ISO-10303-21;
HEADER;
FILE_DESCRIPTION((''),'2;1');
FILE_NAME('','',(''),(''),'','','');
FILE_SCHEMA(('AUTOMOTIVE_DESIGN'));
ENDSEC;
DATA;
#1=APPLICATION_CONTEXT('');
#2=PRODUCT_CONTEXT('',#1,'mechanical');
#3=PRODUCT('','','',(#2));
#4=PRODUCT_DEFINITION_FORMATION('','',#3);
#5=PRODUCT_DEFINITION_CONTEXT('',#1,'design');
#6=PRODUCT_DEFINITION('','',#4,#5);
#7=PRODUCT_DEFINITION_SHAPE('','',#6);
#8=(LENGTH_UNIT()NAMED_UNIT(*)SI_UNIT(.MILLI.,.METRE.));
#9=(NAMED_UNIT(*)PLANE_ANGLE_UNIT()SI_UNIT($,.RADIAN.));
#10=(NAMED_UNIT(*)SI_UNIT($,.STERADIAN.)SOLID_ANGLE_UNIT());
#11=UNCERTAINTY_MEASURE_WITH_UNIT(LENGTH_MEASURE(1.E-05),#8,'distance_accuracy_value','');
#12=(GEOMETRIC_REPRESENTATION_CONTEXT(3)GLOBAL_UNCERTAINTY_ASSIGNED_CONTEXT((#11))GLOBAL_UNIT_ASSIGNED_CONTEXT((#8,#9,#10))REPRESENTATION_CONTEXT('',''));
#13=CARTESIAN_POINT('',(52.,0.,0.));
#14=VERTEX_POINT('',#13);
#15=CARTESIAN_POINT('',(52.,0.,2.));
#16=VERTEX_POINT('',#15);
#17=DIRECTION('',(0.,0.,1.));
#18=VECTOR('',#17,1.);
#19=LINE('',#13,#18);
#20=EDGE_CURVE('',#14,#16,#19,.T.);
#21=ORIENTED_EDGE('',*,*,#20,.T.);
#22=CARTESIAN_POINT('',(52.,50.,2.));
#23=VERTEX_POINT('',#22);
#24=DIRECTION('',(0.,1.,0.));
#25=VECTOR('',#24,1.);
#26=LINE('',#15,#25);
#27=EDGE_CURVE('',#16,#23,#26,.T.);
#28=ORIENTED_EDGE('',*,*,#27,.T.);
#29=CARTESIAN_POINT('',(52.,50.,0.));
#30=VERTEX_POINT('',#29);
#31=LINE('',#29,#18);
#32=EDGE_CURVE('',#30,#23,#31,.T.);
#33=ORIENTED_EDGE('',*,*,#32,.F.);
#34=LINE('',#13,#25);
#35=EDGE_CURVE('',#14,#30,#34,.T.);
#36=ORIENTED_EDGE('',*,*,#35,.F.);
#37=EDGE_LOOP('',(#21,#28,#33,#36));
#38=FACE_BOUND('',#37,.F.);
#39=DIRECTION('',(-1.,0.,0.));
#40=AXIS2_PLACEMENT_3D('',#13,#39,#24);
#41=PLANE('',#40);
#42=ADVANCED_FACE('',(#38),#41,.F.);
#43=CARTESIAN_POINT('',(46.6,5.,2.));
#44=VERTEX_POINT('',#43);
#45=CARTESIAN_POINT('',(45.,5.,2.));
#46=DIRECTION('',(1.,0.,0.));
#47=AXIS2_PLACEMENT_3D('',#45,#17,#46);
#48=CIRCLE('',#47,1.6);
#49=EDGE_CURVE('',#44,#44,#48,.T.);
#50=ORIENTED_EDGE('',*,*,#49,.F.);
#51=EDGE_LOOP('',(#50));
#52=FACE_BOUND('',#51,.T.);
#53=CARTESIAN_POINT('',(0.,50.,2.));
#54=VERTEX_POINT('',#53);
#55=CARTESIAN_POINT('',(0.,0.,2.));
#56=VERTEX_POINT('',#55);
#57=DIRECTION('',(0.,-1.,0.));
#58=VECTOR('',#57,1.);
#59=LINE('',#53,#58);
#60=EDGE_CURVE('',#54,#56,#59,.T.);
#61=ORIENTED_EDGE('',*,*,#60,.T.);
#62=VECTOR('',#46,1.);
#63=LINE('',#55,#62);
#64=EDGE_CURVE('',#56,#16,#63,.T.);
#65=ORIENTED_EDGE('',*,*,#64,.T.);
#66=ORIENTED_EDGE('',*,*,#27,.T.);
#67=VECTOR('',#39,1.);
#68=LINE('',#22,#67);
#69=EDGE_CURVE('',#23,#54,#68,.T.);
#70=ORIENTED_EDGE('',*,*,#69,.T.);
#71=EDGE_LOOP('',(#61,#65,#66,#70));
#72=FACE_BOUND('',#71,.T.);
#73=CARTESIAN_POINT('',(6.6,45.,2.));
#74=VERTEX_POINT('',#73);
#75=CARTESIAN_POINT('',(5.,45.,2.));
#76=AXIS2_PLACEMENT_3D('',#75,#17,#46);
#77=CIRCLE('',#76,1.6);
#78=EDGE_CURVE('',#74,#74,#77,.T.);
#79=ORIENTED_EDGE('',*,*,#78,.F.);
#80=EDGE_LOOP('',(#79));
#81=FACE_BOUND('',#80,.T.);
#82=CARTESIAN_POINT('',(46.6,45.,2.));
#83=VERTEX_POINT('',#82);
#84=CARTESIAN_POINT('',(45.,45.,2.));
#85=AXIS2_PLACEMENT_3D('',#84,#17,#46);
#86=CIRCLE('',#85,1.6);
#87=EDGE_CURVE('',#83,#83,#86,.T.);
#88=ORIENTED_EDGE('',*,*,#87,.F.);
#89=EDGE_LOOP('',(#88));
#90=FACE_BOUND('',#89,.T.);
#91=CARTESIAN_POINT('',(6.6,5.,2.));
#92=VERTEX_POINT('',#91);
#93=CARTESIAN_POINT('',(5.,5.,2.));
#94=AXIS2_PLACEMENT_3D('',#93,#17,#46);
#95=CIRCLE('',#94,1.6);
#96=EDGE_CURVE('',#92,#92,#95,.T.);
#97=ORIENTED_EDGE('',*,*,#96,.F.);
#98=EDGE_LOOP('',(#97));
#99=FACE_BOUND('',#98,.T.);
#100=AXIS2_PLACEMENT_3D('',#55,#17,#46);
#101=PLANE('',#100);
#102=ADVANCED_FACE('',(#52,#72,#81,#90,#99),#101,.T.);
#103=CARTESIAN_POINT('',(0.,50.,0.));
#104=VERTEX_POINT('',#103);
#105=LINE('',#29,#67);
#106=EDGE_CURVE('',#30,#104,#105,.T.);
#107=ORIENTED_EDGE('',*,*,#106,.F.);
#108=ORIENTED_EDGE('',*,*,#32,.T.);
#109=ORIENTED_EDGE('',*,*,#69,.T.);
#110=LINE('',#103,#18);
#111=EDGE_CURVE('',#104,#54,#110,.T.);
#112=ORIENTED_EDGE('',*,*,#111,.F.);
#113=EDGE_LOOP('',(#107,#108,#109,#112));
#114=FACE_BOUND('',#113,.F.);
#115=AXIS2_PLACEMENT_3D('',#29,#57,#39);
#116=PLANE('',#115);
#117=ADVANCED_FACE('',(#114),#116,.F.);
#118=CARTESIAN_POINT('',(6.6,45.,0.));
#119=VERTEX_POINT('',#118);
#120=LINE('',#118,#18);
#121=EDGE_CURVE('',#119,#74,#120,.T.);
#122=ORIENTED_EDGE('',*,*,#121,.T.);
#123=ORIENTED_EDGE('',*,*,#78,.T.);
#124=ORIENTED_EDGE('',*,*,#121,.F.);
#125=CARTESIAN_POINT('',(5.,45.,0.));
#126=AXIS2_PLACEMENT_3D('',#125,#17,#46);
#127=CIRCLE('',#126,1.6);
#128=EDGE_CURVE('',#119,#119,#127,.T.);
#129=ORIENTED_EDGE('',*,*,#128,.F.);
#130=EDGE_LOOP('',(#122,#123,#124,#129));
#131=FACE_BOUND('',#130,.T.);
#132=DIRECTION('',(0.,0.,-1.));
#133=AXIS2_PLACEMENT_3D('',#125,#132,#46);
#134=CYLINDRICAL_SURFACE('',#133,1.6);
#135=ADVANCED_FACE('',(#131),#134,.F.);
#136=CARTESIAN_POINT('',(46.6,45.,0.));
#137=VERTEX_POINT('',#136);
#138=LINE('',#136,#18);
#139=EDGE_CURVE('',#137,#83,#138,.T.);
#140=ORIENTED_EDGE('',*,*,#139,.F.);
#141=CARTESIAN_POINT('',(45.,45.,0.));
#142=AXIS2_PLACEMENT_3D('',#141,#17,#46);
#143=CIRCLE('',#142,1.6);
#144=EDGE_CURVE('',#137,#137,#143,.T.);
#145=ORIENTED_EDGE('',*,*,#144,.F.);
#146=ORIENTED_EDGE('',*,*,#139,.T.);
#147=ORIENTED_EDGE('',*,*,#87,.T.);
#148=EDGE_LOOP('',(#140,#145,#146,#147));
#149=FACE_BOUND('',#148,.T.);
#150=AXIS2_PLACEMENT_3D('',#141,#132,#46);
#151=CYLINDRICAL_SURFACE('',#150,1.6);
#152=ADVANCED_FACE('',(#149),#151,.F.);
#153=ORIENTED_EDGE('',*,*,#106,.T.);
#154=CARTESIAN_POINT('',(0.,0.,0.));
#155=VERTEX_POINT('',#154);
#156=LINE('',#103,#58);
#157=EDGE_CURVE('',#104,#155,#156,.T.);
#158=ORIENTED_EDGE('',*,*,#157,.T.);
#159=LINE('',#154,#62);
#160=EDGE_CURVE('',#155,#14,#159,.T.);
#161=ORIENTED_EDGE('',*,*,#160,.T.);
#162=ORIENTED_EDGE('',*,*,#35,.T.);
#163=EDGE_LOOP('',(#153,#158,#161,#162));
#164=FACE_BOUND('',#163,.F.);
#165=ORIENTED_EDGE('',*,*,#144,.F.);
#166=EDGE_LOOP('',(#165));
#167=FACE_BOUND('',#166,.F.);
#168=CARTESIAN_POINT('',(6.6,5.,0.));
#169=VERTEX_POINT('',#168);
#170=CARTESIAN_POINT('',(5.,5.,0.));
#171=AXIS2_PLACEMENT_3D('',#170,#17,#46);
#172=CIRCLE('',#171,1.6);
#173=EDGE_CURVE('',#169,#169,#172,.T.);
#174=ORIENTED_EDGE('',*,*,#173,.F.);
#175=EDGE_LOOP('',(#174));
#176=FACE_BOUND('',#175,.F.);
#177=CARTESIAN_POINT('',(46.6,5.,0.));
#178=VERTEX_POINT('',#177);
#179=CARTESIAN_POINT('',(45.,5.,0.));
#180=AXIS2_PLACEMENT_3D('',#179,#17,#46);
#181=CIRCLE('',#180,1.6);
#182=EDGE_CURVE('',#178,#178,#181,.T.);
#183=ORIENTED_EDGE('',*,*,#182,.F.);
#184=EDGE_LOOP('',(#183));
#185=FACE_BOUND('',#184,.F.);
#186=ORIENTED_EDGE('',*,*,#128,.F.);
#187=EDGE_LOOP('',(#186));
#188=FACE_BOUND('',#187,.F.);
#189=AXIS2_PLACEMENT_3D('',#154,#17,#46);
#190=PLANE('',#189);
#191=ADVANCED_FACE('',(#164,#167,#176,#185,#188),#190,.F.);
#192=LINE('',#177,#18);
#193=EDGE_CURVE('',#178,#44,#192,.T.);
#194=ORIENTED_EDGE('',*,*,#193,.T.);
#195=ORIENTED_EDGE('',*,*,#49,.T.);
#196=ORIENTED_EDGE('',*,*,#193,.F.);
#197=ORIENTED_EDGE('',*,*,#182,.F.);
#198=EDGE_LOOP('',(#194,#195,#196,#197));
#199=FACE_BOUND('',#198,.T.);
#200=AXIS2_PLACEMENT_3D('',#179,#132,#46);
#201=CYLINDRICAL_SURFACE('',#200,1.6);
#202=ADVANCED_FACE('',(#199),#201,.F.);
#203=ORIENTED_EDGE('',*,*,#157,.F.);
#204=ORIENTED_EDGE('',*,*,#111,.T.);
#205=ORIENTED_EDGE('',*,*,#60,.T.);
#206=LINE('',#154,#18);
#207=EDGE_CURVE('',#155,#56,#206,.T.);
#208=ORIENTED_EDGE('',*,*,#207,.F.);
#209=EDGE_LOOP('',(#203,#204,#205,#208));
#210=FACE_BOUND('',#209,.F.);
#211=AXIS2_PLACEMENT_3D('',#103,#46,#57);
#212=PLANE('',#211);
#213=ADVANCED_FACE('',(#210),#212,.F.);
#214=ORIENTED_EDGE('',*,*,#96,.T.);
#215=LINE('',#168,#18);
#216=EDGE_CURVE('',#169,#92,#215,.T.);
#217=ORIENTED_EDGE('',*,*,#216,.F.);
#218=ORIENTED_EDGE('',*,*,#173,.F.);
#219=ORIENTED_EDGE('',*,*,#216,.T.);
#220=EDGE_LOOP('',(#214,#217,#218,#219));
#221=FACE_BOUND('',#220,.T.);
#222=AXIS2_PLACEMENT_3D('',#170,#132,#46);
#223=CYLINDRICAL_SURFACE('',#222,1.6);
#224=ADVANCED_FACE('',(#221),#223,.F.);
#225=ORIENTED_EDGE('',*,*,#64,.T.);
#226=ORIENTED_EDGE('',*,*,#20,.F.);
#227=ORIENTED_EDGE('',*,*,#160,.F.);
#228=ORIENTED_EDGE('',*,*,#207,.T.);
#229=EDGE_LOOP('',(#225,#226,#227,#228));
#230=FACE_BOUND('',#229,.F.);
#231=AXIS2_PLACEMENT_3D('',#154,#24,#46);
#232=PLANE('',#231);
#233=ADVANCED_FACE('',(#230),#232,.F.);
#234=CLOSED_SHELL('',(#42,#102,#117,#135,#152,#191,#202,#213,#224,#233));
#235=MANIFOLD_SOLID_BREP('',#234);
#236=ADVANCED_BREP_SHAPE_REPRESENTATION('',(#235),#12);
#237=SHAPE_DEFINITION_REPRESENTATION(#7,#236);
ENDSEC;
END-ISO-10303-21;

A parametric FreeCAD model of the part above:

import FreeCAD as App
import Part
import Sketcher
Q = App.Units.Quantity

doc = App.newDocument("Part")
body = doc.addObject("PartDesign::Body", "Body")

sketch1 = body.newObject("Sketcher::SketchObject", "Sketch")
sketch1.AttachmentSupport = (doc.getObject("XY_Plane"), [""])
sketch1.MapMode = "FlatFace"
sketch1.addGeometry([
    Part.LineSegment(App.Vector(0, 50, 0), App.Vector(0, 0, 0)),
    Part.LineSegment(App.Vector(0, 0, 0), App.Vector(52, 0, 0)),
    Part.LineSegment(App.Vector(52, 0, 0), App.Vector(52, 50, 0)),
    Part.LineSegment(App.Vector(52, 50, 0), App.Vector(0, 50, 0)),
    Part.Circle(App.Vector(5, 5, 0), App.Vector(0, 0, 1), 1.6),
    Part.Circle(App.Vector(45, 5, 0), App.Vector(0, 0, 1), 1.6),
    Part.Circle(App.Vector(5, 45, 0), App.Vector(0, 0, 1), 1.6),
    Part.Circle(App.Vector(45, 45, 0), App.Vector(0, 0, 1), 1.6),
], False)
sketch1.addConstraint([
    Sketcher.Constraint("Coincident", 0, 2, 1, 1),
    Sketcher.Constraint("Coincident", 1, 2, 2, 1),
    Sketcher.Constraint("Coincident", 2, 2, 3, 1),
    Sketcher.Constraint("Coincident", 3, 2, 0, 1),
    Sketcher.Constraint("Vertical", 0),
    Sketcher.Constraint("Horizontal", 1),
    Sketcher.Constraint("Vertical", 2),
    Sketcher.Constraint("Horizontal", 3),
    Sketcher.Constraint("Coincident", 0, 2, -1, 1),
    Sketcher.Constraint("Equal", 4, 5),
    Sketcher.Constraint("Equal", 5, 6),
    Sketcher.Constraint("Equal", 6, 7),
    Sketcher.Constraint("Horizontal", 4, 3, 5, 3),
    Sketcher.Constraint("Horizontal", 6, 3, 7, 3),
    Sketcher.Constraint("Vertical", 4, 3, 6, 3),
    Sketcher.Constraint("Vertical", 5, 3, 7, 3),
    Sketcher.Constraint("Diameter", 4, Q("3.2 mm")),
    Sketcher.Constraint("DistanceX", 1, 1, 1, 2, Q("52 mm")),
    Sketcher.Constraint("DistanceY", 0, 2, 0, 1, Q("50 mm")),
    Sketcher.Constraint("DistanceX", -1, 1, 4, 3, Q("5 mm")),
    Sketcher.Constraint("DistanceY", -1, 1, 4, 3, Q("5 mm")),
    Sketcher.Constraint("DistanceX", 5, 3, 1, 2, Q("7 mm")),
    Sketcher.Constraint("DistanceY", 7, 3, 2, 2, Q("5 mm")),
])
pad1 = body.newObject("PartDesign::Pad", "Pad")
pad1.Profile = sketch1
pad1.Length = 2

doc.recompute()
